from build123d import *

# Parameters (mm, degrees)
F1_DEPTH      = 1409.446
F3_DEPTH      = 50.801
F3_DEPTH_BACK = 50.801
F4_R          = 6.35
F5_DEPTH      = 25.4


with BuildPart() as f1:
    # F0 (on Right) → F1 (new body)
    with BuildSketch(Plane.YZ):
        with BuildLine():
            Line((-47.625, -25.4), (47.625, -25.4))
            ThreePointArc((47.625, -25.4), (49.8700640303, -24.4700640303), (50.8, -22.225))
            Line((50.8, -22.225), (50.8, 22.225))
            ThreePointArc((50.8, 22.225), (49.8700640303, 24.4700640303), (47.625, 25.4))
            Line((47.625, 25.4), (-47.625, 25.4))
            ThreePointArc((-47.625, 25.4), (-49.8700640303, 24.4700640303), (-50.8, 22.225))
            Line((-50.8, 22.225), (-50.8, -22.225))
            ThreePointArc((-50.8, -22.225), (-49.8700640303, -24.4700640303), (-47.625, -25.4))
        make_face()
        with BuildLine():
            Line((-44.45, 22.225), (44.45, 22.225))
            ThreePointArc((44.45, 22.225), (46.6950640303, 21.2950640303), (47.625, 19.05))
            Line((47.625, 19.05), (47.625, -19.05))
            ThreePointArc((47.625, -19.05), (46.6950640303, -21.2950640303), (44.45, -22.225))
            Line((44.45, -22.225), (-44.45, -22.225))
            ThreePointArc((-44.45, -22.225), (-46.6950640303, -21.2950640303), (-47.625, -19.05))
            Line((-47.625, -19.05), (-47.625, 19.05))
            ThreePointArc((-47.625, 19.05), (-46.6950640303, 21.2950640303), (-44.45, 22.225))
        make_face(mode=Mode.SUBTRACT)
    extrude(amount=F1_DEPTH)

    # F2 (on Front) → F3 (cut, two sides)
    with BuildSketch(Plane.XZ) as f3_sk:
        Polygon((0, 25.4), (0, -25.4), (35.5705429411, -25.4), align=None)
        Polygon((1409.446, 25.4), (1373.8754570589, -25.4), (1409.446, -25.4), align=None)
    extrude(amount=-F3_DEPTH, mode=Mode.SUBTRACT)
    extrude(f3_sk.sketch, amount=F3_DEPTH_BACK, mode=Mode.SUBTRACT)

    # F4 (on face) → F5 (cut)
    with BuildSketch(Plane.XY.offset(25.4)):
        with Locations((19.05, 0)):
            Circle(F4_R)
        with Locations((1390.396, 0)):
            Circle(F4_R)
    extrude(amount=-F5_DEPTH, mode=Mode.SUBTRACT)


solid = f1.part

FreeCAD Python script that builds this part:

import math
import FreeCAD as App
import Part
import Sketcher
from FreeCAD import Vector
Q = App.Units.Quantity


def add_polygon(sketch, points):
    """Adds a closed chain of lines whose ends are joined by coincident constraints."""
    first, n = sketch.GeometryCount, len(points)
    for a, b in zip(points, points[1:] + points[:1]):
        sketch.addGeometry(Part.LineSegment(App.Vector(*a, 0), App.Vector(*b, 0)), False)
    for i in range(n):
        sketch.addConstraint(Sketcher.Constraint("Coincident", first + i, 2, first + (i + 1) % n, 1))

doc = App.newDocument("Part")
body = doc.addObject("PartDesign::Body", "Body")

# Sketch on YZ plane
sketch1 = body.newObject("Sketcher::SketchObject", "Sketch")
sketch1.AttachmentSupport = (doc.getObject("YZ_Plane"), [""])
sketch1.MapMode = "FlatFace"
sketch1.addGeometry(Part.LineSegment(Vector(-47.6, -25.4, 0), Vector(47.6, -25.4, 0)), False)
sketch1.addGeometry(Part.ArcOfCircle(Part.Circle(Vector(47.6, -22.2, 0), Vector(0, 0, 1), 3.2), math.radians(-90), math.radians(0)), False)
sketch1.addGeometry(Part.LineSegment(Vector(50.8, -22.2, 0), Vector(50.8, 22.2, 0)), False)
sketch1.addGeometry(Part.ArcOfCircle(Part.Circle(Vector(47.6, 22.2, 0), Vector(0, 0, 1), 3.2), math.radians(0), math.radians(90)), False)
sketch1.addGeometry(Part.LineSegment(Vector(47.6, 25.4, 0), Vector(-47.6, 25.4, 0)), False)
sketch1.addGeometry(Part.ArcOfCircle(Part.Circle(Vector(-47.6, 22.2, 0), Vector(0, 0, 1), 3.2), math.radians(90), math.radians(180)), False)
sketch1.addGeometry(Part.LineSegment(Vector(-50.8, 22.2, 0), Vector(-50.8, -22.2, 0)), False)
sketch1.addGeometry(Part.ArcOfCircle(Part.Circle(Vector(-47.6, -22.2, 0), Vector(0, 0, 1), 3.2), math.radians(180), math.radians(270)), False)
sketch1.addGeometry(Part.ArcOfCircle(Part.Circle(Vector(-44.5, 19.1, 0), Vector(0, 0, 1), 3.2), math.radians(90), math.radians(180)), False)
sketch1.addGeometry(Part.LineSegment(Vector(-44.5, 22.2, 0), Vector(44.5, 22.2, 0)), False)
sketch1.addGeometry(Part.ArcOfCircle(Part.Circle(Vector(44.5, 19.1, 0), Vector(0, 0, 1), 3.2), math.radians(0), math.radians(90)), False)
sketch1.addGeometry(Part.LineSegment(Vector(47.6, 19.1, 0), Vector(47.6, -19.1, 0)), False)
sketch1.addGeometry(Part.ArcOfCircle(Part.Circle(Vector(44.5, -19.1, 0), Vector(0, 0, 1), 3.2), math.radians(-90), math.radians(0)), False)
sketch1.addGeometry(Part.LineSegment(Vector(44.5, -22.2, 0), Vector(-44.5, -22.2, 0)), False)
sketch1.addGeometry(Part.ArcOfCircle(Part.Circle(Vector(-44.5, -19.1, 0), Vector(0, 0, 1), 3.2), math.radians(180), math.radians(270)), False)
sketch1.addGeometry(Part.LineSegment(Vector(-47.6, -19.1, 0), Vector(-47.6, 19.1, 0)), False)
sketch1.addConstraint(Sketcher.Constraint("Tangent", 0, 2, 1, 1))
sketch1.addConstraint(Sketcher.Constraint("Tangent", 1, 2, 2, 1))
sketch1.addConstraint(Sketcher.Constraint("Tangent", 2, 2, 3, 1))
sketch1.addConstraint(Sketcher.Constraint("Tangent", 3, 2, 4, 1))
sketch1.addConstraint(Sketcher.Constraint("Tangent", 4, 2, 5, 1))
sketch1.addConstraint(Sketcher.Constraint("Tangent", 5, 2, 6, 1))
sketch1.addConstraint(Sketcher.Constraint("Tangent", 6, 2, 7, 1))
sketch1.addConstraint(Sketcher.Constraint("Tangent", 7, 2, 0, 1))
sketch1.addConstraint(Sketcher.Constraint("Tangent", 8, 1, 9, 1))
sketch1.addConstraint(Sketcher.Constraint("Tangent", 9, 2, 10, 2))
sketch1.addConstraint(Sketcher.Constraint("Tangent", 10, 1, 11, 1))
sketch1.addConstraint(Sketcher.Constraint("Tangent", 11, 2, 12, 2))
sketch1.addConstraint(Sketcher.Constraint("Tangent", 12, 1, 13, 1))
sketch1.addConstraint(Sketcher.Constraint("Tangent", 13, 2, 14, 2))
sketch1.addConstraint(Sketcher.Constraint("Tangent", 14, 1, 15, 1))
sketch1.addConstraint(Sketcher.Constraint("Tangent", 15, 2, 8, 2))
sketch1.addConstraint(Sketcher.Constraint("Horizontal", 0))
sketch1.addConstraint(Sketcher.Constraint("Vertical", 2))
sketch1.addConstraint(Sketcher.Constraint("Horizontal", 4))
sketch1.addConstraint(Sketcher.Constraint("Vertical", 6))
sketch1.addConstraint(Sketcher.Constraint("Horizontal", 9))
sketch1.addConstraint(Sketcher.Constraint("Vertical", 11))
sketch1.addConstraint(Sketcher.Constraint("Horizontal", 13))
sketch1.addConstraint(Sketcher.Constraint("Vertical", 15))
sketch1.addConstraint(Sketcher.Constraint("Equal", 1, 3))
sketch1.addConstraint(Sketcher.Constraint("Equal", 3, 5))
sketch1.addConstraint(Sketcher.Constraint("Equal", 5, 7))
sketch1.addConstraint(Sketcher.Constraint("Equal", 7, 8))
sketch1.addConstraint(Sketcher.Constraint("Equal", 8, 10))
sketch1.addConstraint(Sketcher.Constraint("Equal", 10, 12))
sketch1.addConstraint(Sketcher.Constraint("Equal", 12, 14))
sketch1.addConstraint(Sketcher.Constraint("Symmetric", 1, 3, 5, 3, -1, 1))
sketch1.addConstraint(Sketcher.Constraint("Symmetric", 8, 3, 12, 3, -1, 1))
sketch1.addConstraint(Sketcher.Constraint("Horizontal", 5, 2, 8, 1))
sketch1.addConstraint(Sketcher.Constraint("Vertical", 3, 2, 10, 1))
sketch1.addConstraint(Sketcher.Constraint("DistanceX", 9, 1, 9, 2, Q("3.5 in")))
sketch1.addConstraint(Sketcher.Constraint("DistanceY", 11, 2, 11, 1, Q("1.5 in")))
sketch1.addConstraint(Sketcher.Constraint("DistanceY", 0, 2, -1, 1, Q("1 in")))
pad1 = body.newObject("PartDesign::Pad", "Pad")
pad1.Profile = sketch1
pad1.Length = Q("55.49 in")

# Sketch on XZ plane
sketch2 = body.newObject("Sketcher::SketchObject", "Sketch001")
sketch2.AttachmentSupport = (doc.getObject("XZ_Plane"), [""])
sketch2.MapMode = "FlatFace"
add_polygon(sketch2, [(0, 25), (0, -25), (36, -25)])  # lines 0-2
add_polygon(sketch2, [(1409, 25), (1374, -25), (1409, -25)])  # lines 3-5
sketch2.addConstraint(Sketcher.Constraint("Vertical", 0))
sketch2.addConstraint(Sketcher.Constraint("Horizontal", 1))
sketch2.addConstraint(Sketcher.Constraint("Horizontal", 4))
sketch2.addConstraint(Sketcher.Constraint("Vertical", 5))
sketch2.addConstraint(Sketcher.Constraint("Symmetric", 0, 2, 2, 2, -1, 1))
sketch2.addConstraint(Sketcher.Constraint("Horizontal", 1, 2, 3, 2))
sketch2.addConstraint(Sketcher.Constraint("Horizontal", 2, 2, 5, 2))
sketch2.addConstraint(Sketcher.Constraint("Equal", 1, 4))
sketch2.addConstraint(Sketcher.Constraint("DistanceY", 0, 2, 0, 1, Q("2 in")))
sketch2.addConstraint(Sketcher.Constraint("Angle", 2, Q("125 deg")))
sketch2.addConstraint(Sketcher.Constraint("DistanceX", -1, 1, 4, 2, Q("55.49 in")))
pocket1 = body.newObject("PartDesign::Pocket", "Pocket")
pocket1.Profile = sketch2
pocket1.Type = "ThroughAll"
pocket1.Midplane = True

# Sketch on XY plane
sketch3 = body.newObject("Sketcher::SketchObject", "Sketch002")
sketch3.AttachmentSupport = (doc.getObject("XY_Plane"), [""])
sketch3.MapMode = "FlatFace"
sketch3.AttachmentOffset = App.Placement(Vector(0, 0, 1 * 25.4), App.Rotation())
sketch3.addGeometry(Part.Circle(Vector(19, 0, 0), Vector(0, 0, 1), 6), False)
sketch3.addGeometry(Part.Circle(Vector(1390, 0, 0), Vector(0, 0, 1), 6), False)
sketch3.addConstraint(Sketcher.Constraint("Equal", 0, 1))
sketch3.addConstraint(Sketcher.Constraint("PointOnObject", 0, 3, -1))
sketch3.addConstraint(Sketcher.Constraint("PointOnObject", 1, 3, -1))
sketch3.addConstraint(Sketcher.Constraint("Diameter", 0, Q("0.5 in")))
sketch3.addConstraint(Sketcher.Constraint("DistanceX", -1, 1, 0, 3, Q("0.75 in")))
sketch3.addConstraint(Sketcher.Constraint("DistanceX", -1, 1, 1, 3, Q("54.74 in")))
pocket2 = body.newObject("PartDesign::Pocket", "Pocket001")
pocket2.Profile = sketch3
pocket2.Length = Q("1 in")

doc.recompute()
